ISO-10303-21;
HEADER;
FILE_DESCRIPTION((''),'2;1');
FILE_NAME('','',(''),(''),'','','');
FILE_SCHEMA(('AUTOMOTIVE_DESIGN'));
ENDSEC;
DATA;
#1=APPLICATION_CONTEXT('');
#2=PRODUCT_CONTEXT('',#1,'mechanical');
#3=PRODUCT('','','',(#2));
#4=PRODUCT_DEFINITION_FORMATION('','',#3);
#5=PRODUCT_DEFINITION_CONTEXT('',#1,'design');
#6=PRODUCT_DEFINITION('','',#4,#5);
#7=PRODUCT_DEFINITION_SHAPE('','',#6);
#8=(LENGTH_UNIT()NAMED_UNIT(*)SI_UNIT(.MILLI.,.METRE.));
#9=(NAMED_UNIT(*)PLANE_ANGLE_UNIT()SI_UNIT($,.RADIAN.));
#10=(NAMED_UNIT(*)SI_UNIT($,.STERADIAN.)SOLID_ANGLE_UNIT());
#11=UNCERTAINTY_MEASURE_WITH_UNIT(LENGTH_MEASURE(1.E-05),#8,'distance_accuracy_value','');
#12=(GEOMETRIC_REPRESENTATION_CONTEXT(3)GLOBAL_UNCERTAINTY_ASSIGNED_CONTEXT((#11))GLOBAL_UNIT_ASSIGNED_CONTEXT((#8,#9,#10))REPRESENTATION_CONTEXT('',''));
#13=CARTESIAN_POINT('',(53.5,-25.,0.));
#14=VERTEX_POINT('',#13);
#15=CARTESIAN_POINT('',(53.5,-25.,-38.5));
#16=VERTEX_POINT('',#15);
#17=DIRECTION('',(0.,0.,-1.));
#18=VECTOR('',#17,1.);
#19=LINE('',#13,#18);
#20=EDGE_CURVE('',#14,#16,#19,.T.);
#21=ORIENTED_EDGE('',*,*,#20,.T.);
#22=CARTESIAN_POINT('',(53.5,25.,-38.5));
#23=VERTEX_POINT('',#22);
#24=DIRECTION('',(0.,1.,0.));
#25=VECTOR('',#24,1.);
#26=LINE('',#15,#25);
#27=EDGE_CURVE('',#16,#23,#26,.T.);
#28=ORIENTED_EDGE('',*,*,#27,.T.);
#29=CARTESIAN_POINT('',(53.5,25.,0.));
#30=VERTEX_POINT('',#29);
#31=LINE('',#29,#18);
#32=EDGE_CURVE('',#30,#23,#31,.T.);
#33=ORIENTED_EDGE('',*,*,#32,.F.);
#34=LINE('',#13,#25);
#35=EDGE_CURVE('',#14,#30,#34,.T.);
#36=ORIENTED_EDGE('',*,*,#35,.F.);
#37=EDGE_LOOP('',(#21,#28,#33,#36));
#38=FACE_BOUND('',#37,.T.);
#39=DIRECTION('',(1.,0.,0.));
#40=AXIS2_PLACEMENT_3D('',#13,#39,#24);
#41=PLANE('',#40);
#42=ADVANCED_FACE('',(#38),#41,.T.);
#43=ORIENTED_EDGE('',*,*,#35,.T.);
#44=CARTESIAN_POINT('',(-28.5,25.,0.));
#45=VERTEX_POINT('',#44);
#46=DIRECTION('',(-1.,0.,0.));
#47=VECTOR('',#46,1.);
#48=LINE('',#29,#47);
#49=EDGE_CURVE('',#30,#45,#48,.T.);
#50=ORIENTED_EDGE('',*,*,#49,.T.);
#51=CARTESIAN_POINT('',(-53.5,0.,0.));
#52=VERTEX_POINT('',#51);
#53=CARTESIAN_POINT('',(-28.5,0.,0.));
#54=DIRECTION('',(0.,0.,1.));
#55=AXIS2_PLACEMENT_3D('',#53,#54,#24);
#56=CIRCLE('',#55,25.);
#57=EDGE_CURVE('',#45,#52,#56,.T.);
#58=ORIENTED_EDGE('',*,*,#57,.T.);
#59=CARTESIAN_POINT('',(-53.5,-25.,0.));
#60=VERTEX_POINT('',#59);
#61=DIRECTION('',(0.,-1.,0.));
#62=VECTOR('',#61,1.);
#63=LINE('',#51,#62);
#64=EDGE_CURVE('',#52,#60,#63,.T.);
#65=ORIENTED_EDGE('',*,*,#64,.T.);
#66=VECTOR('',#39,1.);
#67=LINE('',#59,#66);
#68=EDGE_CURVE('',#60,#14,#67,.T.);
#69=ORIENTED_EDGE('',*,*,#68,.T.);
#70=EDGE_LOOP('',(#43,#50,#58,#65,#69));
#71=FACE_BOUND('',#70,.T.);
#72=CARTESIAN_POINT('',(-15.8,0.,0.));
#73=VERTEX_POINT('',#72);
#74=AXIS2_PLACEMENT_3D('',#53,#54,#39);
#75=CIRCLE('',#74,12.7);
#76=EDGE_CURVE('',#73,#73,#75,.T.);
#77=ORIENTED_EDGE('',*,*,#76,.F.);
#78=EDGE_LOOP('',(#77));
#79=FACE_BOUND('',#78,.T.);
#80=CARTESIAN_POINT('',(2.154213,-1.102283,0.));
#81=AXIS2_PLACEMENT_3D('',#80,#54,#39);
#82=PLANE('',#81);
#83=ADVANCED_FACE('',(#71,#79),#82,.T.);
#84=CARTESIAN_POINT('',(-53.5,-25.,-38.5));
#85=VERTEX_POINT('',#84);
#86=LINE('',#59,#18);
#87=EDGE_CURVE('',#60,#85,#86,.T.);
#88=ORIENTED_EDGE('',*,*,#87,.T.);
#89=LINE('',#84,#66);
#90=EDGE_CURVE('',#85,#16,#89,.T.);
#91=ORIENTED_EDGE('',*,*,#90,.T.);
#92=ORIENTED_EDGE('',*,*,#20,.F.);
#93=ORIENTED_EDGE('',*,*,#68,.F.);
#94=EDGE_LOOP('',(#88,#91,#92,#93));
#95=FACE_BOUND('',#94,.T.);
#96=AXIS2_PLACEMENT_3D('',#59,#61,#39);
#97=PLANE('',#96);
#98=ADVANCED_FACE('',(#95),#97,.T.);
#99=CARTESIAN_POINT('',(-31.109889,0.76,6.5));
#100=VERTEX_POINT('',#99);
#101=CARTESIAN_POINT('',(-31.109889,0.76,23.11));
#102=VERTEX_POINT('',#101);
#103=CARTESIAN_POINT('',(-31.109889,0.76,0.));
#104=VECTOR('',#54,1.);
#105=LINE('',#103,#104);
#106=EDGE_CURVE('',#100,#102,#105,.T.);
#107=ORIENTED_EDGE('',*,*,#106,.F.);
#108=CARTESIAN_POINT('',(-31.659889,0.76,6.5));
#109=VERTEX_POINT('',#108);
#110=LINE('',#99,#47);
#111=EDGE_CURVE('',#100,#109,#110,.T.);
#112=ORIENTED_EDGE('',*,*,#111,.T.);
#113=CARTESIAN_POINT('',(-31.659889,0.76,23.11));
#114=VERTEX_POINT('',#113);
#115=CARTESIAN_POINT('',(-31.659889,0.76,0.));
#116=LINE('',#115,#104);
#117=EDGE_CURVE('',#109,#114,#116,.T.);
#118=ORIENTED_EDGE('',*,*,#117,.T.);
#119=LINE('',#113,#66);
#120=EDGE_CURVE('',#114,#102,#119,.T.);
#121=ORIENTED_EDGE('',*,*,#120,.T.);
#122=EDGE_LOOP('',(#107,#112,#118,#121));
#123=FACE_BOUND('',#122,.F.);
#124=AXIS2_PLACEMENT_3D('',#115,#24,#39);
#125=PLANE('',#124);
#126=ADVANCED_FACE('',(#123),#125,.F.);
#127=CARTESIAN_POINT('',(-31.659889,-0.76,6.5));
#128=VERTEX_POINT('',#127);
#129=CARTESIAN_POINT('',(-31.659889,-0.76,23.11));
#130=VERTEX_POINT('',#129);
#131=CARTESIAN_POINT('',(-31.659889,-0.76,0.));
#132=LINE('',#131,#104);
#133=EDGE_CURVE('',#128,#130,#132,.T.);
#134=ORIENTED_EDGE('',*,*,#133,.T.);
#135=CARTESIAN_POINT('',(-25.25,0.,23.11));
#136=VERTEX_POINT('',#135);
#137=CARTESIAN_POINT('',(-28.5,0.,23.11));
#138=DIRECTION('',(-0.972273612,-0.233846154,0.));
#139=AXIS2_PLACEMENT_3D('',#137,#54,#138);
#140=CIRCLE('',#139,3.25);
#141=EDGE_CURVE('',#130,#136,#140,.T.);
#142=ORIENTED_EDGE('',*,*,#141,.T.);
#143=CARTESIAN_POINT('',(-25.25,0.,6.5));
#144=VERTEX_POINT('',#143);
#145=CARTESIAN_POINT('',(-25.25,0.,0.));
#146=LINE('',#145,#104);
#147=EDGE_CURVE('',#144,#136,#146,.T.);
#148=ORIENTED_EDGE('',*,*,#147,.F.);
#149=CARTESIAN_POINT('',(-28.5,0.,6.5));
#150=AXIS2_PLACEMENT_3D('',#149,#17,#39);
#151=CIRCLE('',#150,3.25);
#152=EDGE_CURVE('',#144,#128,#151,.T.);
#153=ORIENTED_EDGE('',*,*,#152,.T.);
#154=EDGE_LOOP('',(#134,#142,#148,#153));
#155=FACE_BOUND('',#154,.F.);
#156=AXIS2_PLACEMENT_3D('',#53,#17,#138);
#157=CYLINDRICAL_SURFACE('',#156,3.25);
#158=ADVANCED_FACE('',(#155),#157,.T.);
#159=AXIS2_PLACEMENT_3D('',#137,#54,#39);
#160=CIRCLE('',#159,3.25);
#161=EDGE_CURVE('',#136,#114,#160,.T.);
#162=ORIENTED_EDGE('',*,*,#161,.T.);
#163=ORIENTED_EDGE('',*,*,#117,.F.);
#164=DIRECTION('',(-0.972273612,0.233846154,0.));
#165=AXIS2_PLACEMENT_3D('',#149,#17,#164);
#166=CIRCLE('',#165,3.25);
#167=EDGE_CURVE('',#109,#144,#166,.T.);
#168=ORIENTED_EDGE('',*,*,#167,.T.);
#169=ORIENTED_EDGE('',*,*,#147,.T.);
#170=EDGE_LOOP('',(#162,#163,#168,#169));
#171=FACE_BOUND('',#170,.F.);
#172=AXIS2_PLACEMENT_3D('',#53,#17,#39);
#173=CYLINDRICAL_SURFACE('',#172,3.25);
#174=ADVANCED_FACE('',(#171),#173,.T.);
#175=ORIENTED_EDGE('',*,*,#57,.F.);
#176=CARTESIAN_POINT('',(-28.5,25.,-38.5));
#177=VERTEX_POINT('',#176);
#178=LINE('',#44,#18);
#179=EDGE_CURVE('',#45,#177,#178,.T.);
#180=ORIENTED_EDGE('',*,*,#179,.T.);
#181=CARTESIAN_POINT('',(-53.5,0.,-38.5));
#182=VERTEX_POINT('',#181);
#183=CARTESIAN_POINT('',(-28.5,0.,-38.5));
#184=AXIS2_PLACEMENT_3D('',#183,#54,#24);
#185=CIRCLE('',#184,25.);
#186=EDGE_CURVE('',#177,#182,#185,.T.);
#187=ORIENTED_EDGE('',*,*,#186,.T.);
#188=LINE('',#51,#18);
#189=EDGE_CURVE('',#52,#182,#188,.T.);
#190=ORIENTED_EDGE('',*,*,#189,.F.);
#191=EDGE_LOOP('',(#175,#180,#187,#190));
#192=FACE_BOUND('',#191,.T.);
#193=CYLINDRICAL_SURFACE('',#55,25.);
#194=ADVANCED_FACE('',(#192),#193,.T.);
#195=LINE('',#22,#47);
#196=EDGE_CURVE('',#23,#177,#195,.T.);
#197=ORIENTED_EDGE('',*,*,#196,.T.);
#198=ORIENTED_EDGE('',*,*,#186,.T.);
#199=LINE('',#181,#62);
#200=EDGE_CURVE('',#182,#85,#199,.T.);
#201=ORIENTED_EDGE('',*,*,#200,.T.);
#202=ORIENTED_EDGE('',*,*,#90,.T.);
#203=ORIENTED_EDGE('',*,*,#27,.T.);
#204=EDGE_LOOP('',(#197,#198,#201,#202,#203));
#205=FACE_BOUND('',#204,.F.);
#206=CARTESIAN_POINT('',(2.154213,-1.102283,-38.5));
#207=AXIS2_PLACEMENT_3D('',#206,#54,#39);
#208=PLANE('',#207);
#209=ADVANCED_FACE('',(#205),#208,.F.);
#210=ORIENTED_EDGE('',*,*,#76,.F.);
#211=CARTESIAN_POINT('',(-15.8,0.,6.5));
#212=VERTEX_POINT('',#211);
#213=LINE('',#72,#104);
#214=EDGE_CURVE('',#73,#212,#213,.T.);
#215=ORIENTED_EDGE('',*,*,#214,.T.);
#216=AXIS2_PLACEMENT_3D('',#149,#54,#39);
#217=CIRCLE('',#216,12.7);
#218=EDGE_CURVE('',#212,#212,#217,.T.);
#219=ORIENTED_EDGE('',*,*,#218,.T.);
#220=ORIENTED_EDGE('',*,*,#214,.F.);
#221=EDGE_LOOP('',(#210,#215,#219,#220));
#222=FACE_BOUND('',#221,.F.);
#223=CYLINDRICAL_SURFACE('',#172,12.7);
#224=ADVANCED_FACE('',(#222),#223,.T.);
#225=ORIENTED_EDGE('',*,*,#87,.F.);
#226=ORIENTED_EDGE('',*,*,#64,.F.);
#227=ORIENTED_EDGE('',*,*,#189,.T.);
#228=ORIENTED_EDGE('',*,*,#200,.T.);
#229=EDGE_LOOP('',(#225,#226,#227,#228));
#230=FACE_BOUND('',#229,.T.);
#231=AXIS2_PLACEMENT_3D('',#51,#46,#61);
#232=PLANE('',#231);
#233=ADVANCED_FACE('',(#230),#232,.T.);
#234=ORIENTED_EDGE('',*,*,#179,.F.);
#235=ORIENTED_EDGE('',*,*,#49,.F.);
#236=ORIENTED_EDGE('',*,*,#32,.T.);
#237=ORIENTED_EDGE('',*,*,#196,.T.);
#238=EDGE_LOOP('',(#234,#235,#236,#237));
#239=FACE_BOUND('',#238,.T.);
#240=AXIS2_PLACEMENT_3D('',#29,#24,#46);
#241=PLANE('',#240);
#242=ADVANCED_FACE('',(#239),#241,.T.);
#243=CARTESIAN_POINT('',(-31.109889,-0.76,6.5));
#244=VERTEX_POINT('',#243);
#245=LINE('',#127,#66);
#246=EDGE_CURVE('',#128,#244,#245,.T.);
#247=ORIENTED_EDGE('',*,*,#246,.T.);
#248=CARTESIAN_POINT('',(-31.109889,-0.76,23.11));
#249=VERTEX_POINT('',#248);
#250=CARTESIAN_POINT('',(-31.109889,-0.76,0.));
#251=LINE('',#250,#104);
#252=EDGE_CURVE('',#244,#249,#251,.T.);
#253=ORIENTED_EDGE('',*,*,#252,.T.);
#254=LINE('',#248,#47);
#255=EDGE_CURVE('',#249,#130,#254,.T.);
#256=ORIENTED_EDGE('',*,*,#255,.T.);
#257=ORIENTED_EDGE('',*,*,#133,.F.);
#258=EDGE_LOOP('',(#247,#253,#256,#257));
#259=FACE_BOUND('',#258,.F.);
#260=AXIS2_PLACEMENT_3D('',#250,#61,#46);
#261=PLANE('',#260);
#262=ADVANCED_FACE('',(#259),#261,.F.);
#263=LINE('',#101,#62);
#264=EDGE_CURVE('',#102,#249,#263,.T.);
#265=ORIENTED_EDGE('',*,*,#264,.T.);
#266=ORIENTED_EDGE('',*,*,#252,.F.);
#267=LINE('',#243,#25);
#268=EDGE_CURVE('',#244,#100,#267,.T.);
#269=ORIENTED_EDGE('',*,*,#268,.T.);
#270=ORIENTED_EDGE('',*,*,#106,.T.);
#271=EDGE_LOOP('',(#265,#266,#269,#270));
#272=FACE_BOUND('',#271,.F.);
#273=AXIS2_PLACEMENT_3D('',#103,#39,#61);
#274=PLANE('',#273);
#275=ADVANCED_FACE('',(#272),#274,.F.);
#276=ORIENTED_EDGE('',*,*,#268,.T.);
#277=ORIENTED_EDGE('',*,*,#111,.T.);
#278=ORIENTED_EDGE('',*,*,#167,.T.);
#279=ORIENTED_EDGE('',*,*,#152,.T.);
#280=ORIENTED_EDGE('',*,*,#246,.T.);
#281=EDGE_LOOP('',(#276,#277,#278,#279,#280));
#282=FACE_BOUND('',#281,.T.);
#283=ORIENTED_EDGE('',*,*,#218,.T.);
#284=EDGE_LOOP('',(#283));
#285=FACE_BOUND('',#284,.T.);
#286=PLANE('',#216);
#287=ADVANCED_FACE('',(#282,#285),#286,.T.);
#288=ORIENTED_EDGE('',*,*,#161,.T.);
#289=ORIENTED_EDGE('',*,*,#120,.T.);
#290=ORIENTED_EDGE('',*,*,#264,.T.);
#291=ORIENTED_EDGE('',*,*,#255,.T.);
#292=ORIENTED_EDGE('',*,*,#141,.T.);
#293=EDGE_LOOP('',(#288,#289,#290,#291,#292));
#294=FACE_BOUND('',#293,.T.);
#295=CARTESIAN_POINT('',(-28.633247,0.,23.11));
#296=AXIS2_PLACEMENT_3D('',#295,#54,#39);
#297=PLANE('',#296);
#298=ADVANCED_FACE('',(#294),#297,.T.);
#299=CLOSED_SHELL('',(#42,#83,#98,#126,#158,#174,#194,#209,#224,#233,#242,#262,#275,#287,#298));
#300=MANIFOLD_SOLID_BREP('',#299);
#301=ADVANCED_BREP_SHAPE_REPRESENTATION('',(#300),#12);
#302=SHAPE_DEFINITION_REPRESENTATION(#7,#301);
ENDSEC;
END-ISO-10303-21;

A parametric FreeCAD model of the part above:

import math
import FreeCAD as App
import Part
import Sketcher

V = App.Vector

doc = App.newDocument("Part")
body = doc.addObject("PartDesign::Body", "Body")

# Sketch on XY plane
sketch1 = body.newObject("Sketcher::SketchObject", "Sketch")
sketch1.AttachmentSupport = (doc.getObject("XY_Plane"), [""])
sketch1.MapMode = "FlatFace"
sketch1.addGeometry([
    Part.LineSegment(V(53.5, -25, 0), V(53.5, 25, 0)),  # 0
    Part.LineSegment(V(53.5, 25, 0), V(-28.5, 25, 0)),  # 1
    Part.ArcOfCircle(Part.Circle(V(-28.5, 0, 0), V(0, 0, 1), 25), math.radians(90), math.radians(180)),  # 2
    Part.LineSegment(V(-53.5, 0, 0), V(-53.5, -25, 0)),  # 3
    Part.LineSegment(V(-53.5, -25, 0), V(53.5, -25, 0)),  # 4
], False)
sketch1.addConstraint([
    Sketcher.Constraint("Coincident", 0, 2, 1, 1),
    Sketcher.Constraint("Tangent", 1, 2, 2, 1),
    Sketcher.Constraint("Tangent", 2, 2, 3, 1),
    Sketcher.Constraint("Coincident", 3, 2, 4, 1),
    Sketcher.Constraint("Coincident", 4, 2, 0, 1),
    Sketcher.Constraint("Vertical", 0),
    Sketcher.Constraint("Horizontal", 1),
    Sketcher.Constraint("Vertical", 3),
    Sketcher.Constraint("Horizontal", 4),
    Sketcher.Constraint("Symmetric", 0, 2, 3, 2, -1, 1),
    Sketcher.Constraint("PointOnObject", 2, 3, -1),
    Sketcher.Constraint("Radius", 2, 25.0),
    Sketcher.Constraint("DistanceX", 1, 2, 1, 1, 82.0),
])
pad1 = body.newObject("PartDesign::Pad", "Pad")
pad1.Profile = sketch1
pad1.Length = 38.5
pad1.Reversed = True

# Sketch on XY plane
sketch2 = body.newObject("Sketcher::SketchObject", "Sketch001")
sketch2.AttachmentSupport = (doc.getObject("XY_Plane"), [""])
sketch2.MapMode = "FlatFace"
sketch2.addGeometry([
    Part.ArcOfCircle(Part.Circle(V(-28.5, 0, 0), V(0, 0, 1), 3.25), math.radians(-166.476383), math.radians(0)),  # 0
    Part.ArcOfCircle(Part.Circle(V(-28.5, 0, 0), V(0, 0, 1), 3.25), math.radians(0), math.radians(166.476383)),  # 1
    Part.LineSegment(V(-31.659889, 0.76, 0), V(-31.109889, 0.76, 0)),  # 2
    Part.LineSegment(V(-31.109889, 0.76, 0), V(-31.109889, -0.76, 0)),  # 3
    Part.LineSegment(V(-31.109889, -0.76, 0), V(-31.659889, -0.76, 0)),  # 4
], False)
sketch2.addConstraint([
    Sketcher.Constraint("Tangent", 0, 2, 1, 1),
    Sketcher.Constraint("Coincident", 1, 2, 2, 1),
    Sketcher.Constraint("Coincident", 2, 2, 3, 1),
    Sketcher.Constraint("Coincident", 3, 2, 4, 1),
    Sketcher.Constraint("Coincident", 4, 2, 0, 1),
    Sketcher.Constraint("Horizontal", 2),
    Sketcher.Constraint("Vertical", 3),
    Sketcher.Constraint("Horizontal", 4),
    Sketcher.Constraint("Equal", 0, 1),
    Sketcher.Constraint("Symmetric", 1, 2, 4, 2, -1),
    Sketcher.Constraint("PointOnObject", 0, 2, -1),
    Sketcher.Constraint("Radius", 0, 3.25),
    Sketcher.Constraint("DistanceX", 2, 1, 2, 2, 0.55),
    Sketcher.Constraint("DistanceY", 3, 2, 3, 1, 1.52),
    Sketcher.Constraint("DistanceX", 0, 3, -1, 1, 28.5),
])
pad2 = body.newObject("PartDesign::Pad", "Pad001")
pad2.Profile = sketch2
pad2.Length = 23.11

# Sketch on XY plane
sketch3 = body.newObject("Sketcher::SketchObject", "Sketch002")
sketch3.AttachmentSupport = (doc.getObject("XY_Plane"), [""])
sketch3.MapMode = "FlatFace"
sketch3.addGeometry([
    Part.Circle(V(-28.5, 0, 0), V(0, 0, 1), 12.7),  # 0
    Part.ArcOfCircle(Part.Circle(V(-28.5, 0, 0), V(0, 0, 1), 3.25), math.radians(-166.476383), math.radians(0)),  # 1
    Part.LineSegment(V(-31.659889, -0.76, 0), V(-31.109889, -0.76, 0)),  # 2
    Part.LineSegment(V(-31.109889, -0.76, 0), V(-31.109889, 0.76, 0)),  # 3
    Part.LineSegment(V(-31.109889, 0.76, 0), V(-31.659889, 0.76, 0)),  # 4
    Part.ArcOfCircle(Part.Circle(V(-28.5, 0, 0), V(0, 0, 1), 3.25), math.radians(0), math.radians(166.476383)),  # 5
], False)
sketch3.addConstraint([
    Sketcher.Constraint("Coincident", 1, 1, 2, 1),
    Sketcher.Constraint("Coincident", 2, 2, 3, 1),
    Sketcher.Constraint("Coincident", 3, 2, 4, 1),
    Sketcher.Constraint("Coincident", 4, 2, 5, 2),
    Sketcher.Constraint("Tangent", 5, 1, 1, 2),
    Sketcher.Constraint("Horizontal", 2),
    Sketcher.Constraint("Vertical", 3),
    Sketcher.Constraint("Horizontal", 4),
    Sketcher.Constraint("Coincident", 1, 3, 0, 3),
    Sketcher.Constraint("Equal", 1, 5),
    Sketcher.Constraint("Symmetric", 1, 1, 4, 2, -1),
    Sketcher.Constraint("PointOnObject", 5, 1, -1),
    Sketcher.Constraint("Diameter", 0, 25.4),
    Sketcher.Constraint("Radius", 1, 3.25),
    Sketcher.Constraint("DistanceX", 2, 1, 2, 2, 0.55),
    Sketcher.Constraint("DistanceY", 3, 1, 3, 2, 1.52),
    Sketcher.Constraint("DistanceX", 0, 3, -1, 1, 28.5),
])
pad3 = body.newObject("PartDesign::Pad", "Pad002")
pad3.Profile = sketch3
pad3.Length = 6.5

doc.recompute()
